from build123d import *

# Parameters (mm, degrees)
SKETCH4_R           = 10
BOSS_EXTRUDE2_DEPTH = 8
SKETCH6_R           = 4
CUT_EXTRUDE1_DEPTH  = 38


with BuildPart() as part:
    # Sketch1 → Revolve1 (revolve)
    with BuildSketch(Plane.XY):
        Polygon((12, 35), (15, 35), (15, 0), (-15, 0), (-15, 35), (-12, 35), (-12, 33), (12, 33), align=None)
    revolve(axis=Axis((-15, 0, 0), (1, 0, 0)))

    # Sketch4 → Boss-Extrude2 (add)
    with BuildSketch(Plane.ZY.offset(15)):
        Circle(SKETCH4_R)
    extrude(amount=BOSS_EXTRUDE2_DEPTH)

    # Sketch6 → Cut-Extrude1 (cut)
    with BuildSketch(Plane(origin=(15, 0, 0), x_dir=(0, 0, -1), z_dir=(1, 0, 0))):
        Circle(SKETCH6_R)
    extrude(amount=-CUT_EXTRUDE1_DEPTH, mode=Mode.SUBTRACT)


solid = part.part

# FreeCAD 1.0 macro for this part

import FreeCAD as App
import Part
import Sketcher
from FreeCAD import Vector
Q = App.Units.Quantity


def add_polygon(sketch, points):
    """Adds a closed chain of lines whose ends are joined by coincident constraints."""
    first, n = sketch.GeometryCount, len(points)
    for a, b in zip(points, points[1:] + points[:1]):
        sketch.addGeometry(Part.LineSegment(App.Vector(*a, 0), App.Vector(*b, 0)), False)
    for i in range(n):
        sketch.addConstraint(Sketcher.Constraint("Coincident", first + i, 2, first + (i + 1) % n, 1))

doc = App.newDocument("Part")
body = doc.addObject("PartDesign::Body", "Body")

# Sketch on XY plane
sketch1 = body.newObject("Sketcher::SketchObject", "Sketch")
sketch1.AttachmentSupport = (doc.getObject("XY_Plane"), [""])
sketch1.MapMode = "FlatFace"
add_polygon(sketch1, [(15, 35), (12, 35), (12, 33), (-12, 33), (-12, 35), (-15, 35), (-15, 0), (15, 0)])  # lines 0-7
sketch1.addConstraint(Sketcher.Constraint("Horizontal", 0))
sketch1.addConstraint(Sketcher.Constraint("Vertical", 1))
sketch1.addConstraint(Sketcher.Constraint("Horizontal", 2))
sketch1.addConstraint(Sketcher.Constraint("Vertical", 3))
sketch1.addConstraint(Sketcher.Constraint("Horizontal", 4))
sketch1.addConstraint(Sketcher.Constraint("Vertical", 5))
sketch1.addConstraint(Sketcher.Constraint("Horizontal", 6))
sketch1.addConstraint(Sketcher.Constraint("Vertical", 7))
sketch1.addConstraint(Sketcher.Constraint("Symmetric", 5, 2, 6, 2, -1, 1))
sketch1.addConstraint(Sketcher.Constraint("Symmetric", 0, 2, 3, 2, -2))
sketch1.addConstraint(Sketcher.Constraint("DistanceX", 0, 2, 0, 1, Q("3 mm")))
sketch1.addConstraint(Sketcher.Constraint("DistanceX", 2, 2, 2, 1, Q("24 mm")))
sketch1.addConstraint(Sketcher.Constraint("DistanceY", 1, 2, 1, 1, Q("2 mm")))
sketch1.addConstraint(Sketcher.Constraint("DistanceY", 5, 2, 5, 1, Q("35 mm")))
revolution = body.newObject("PartDesign::Revolution", "Revolution")
revolution.Profile = sketch1
revolution.ReferenceAxis = (sketch1, ["H_Axis"])
revolution.Angle = 360

# Sketch on YZ plane
sketch2 = body.newObject("Sketcher::SketchObject", "Sketch001")
sketch2.AttachmentSupport = (doc.getObject("YZ_Plane"), [""])
sketch2.MapMode = "FlatFace"
sketch2.AttachmentOffset = App.Placement(Vector(0, 0, -15), App.Rotation())
sketch2.addGeometry(Part.Circle(Vector(0, 0, 0), Vector(0, 0, 1), 10), False)
sketch2.addConstraint(Sketcher.Constraint("Coincident", 0, 3, -1, 1))
sketch2.addConstraint(Sketcher.Constraint("Diameter", 0, Q("20 mm")))
pad1 = body.newObject("PartDesign::Pad", "Pad")
pad1.Profile = sketch2
pad1.Length = 8
pad1.Reversed = True

# Sketch on YZ plane
sketch3 = body.newObject("Sketcher::SketchObject", "Sketch002")
sketch3.AttachmentSupport = (doc.getObject("YZ_Plane"), [""])
sketch3.MapMode = "FlatFace"
sketch3.AttachmentOffset = App.Placement(Vector(0, 0, 15), App.Rotation())
sketch3.addGeometry(Part.Circle(Vector(0, 0, 0), Vector(0, 0, 1), 4), False)
sketch3.addConstraint(Sketcher.Constraint("Coincident", 0, 3, -1, 1))
sketch3.addConstraint(Sketcher.Constraint("Diameter", 0, Q("8 mm")))
pocket1 = body.newObject("PartDesign::Pocket", "Pocket")
pocket1.Profile = sketch3
pocket1.Length = 38

doc.recompute()
